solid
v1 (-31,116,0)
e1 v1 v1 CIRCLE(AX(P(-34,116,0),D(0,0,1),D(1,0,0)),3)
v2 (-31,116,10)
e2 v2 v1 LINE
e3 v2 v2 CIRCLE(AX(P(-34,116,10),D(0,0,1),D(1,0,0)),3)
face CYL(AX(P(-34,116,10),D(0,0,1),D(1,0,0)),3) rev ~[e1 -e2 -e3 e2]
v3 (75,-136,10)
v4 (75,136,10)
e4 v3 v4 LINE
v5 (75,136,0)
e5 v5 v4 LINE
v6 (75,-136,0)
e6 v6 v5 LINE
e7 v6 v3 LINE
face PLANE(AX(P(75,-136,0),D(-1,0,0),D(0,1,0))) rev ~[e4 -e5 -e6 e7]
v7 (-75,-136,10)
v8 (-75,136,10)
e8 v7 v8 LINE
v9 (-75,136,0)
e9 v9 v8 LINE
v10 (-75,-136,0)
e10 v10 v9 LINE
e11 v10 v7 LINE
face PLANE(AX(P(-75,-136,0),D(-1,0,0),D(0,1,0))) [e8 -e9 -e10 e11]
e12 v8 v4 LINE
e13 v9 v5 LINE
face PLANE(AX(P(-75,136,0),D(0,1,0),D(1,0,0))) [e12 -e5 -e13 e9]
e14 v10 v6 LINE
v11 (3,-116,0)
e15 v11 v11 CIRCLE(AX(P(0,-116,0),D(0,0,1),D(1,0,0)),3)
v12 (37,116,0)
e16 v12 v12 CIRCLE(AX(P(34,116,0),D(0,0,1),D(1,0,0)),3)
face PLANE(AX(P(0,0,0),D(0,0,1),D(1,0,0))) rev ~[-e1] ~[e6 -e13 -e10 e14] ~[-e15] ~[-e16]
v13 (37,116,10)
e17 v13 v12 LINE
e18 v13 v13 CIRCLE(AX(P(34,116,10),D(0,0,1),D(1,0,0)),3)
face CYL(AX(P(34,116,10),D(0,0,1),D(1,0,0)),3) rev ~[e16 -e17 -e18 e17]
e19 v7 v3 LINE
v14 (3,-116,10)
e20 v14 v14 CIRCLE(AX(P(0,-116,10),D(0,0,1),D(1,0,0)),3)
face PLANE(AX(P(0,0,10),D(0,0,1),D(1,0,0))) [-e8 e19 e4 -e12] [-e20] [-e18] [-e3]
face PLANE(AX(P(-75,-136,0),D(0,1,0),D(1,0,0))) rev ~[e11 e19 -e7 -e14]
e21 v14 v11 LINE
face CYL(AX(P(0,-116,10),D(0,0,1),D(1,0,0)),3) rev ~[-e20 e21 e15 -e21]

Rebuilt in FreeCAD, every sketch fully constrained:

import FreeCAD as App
import Part
import Sketcher
from FreeCAD import Vector


def add_polygon(sketch, points):
    """Adds a closed chain of lines whose ends are joined by coincident constraints."""
    first, n = sketch.GeometryCount, len(points)
    for a, b in zip(points, points[1:] + points[:1]):
        sketch.addGeometry(Part.LineSegment(App.Vector(*a, 0), App.Vector(*b, 0)), False)
    for i in range(n):
        sketch.addConstraint(Sketcher.Constraint("Coincident", first + i, 2, first + (i + 1) % n, 1))

doc = App.newDocument("Part")
body = doc.addObject("PartDesign::Body", "Body")

sketch1 = body.newObject("Sketcher::SketchObject", "Sketch")
sketch1.AttachmentSupport = (doc.getObject("XY_Plane"), [""])
sketch1.MapMode = "FlatFace"
add_polygon(sketch1, [(-75, 136), (-75, -136), (75, -136), (75, 136)])
sketch1.addConstraint(Sketcher.Constraint("Vertical", 0))
sketch1.addConstraint(Sketcher.Constraint("Horizontal", 1))
sketch1.addConstraint(Sketcher.Constraint("Vertical", 2))
sketch1.addConstraint(Sketcher.Constraint("Horizontal", 3))
sketch1.addConstraint(Sketcher.Constraint("Symmetric", 0, 2, 2, 2, -1, 1))
sketch1.addConstraint(Sketcher.Constraint("DistanceX", 1, 1, 1, 2, 150.0))
sketch1.addConstraint(Sketcher.Constraint("DistanceY", 0, 2, 0, 1, 272.0))
pad1 = body.newObject("PartDesign::Pad", "Pad")
pad1.Profile = sketch1
pad1.Length = 10

sketch2 = body.newObject("Sketcher::SketchObject", "Sketch001")
sketch2.AttachmentSupport = (doc.getObject("XY_Plane"), [""])
sketch2.MapMode = "FlatFace"
sketch2.AttachmentOffset = App.Placement(Vector(0, 0, 10), App.Rotation())
sketch2.addGeometry(Part.Circle(Vector(0, -116, 0), Vector(0, 0, 1), 3), False)
sketch2.addGeometry(Part.Circle(Vector(-34, 116, 0), Vector(0, 0, 1), 3), False)
sketch2.addGeometry(Part.Circle(Vector(34, 116, 0), Vector(0, 0, 1), 3), False)
sketch2.addConstraint(Sketcher.Constraint("Equal", 0, 1))
sketch2.addConstraint(Sketcher.Constraint("Equal", 1, 2))
sketch2.addConstraint(Sketcher.Constraint("Symmetric", 1, 3, 2, 3, -2))
sketch2.addConstraint(Sketcher.Constraint("PointOnObject", 0, 3, -2))
sketch2.addConstraint(Sketcher.Constraint("Diameter", 0, 6.0))
sketch2.addConstraint(Sketcher.Constraint("DistanceY", 0, 3, -1, 1, 116.0))
sketch2.addConstraint(Sketcher.Constraint("DistanceX", 1, 3, -1, 1, 34.0))
sketch2.addConstraint(Sketcher.Constraint("DistanceY", -1, 1, 1, 3, 116.0))
pocket1 = body.newObject("PartDesign::Pocket", "Pocket")
pocket1.Profile = sketch2
pocket1.Length = 25

doc.recompute()
